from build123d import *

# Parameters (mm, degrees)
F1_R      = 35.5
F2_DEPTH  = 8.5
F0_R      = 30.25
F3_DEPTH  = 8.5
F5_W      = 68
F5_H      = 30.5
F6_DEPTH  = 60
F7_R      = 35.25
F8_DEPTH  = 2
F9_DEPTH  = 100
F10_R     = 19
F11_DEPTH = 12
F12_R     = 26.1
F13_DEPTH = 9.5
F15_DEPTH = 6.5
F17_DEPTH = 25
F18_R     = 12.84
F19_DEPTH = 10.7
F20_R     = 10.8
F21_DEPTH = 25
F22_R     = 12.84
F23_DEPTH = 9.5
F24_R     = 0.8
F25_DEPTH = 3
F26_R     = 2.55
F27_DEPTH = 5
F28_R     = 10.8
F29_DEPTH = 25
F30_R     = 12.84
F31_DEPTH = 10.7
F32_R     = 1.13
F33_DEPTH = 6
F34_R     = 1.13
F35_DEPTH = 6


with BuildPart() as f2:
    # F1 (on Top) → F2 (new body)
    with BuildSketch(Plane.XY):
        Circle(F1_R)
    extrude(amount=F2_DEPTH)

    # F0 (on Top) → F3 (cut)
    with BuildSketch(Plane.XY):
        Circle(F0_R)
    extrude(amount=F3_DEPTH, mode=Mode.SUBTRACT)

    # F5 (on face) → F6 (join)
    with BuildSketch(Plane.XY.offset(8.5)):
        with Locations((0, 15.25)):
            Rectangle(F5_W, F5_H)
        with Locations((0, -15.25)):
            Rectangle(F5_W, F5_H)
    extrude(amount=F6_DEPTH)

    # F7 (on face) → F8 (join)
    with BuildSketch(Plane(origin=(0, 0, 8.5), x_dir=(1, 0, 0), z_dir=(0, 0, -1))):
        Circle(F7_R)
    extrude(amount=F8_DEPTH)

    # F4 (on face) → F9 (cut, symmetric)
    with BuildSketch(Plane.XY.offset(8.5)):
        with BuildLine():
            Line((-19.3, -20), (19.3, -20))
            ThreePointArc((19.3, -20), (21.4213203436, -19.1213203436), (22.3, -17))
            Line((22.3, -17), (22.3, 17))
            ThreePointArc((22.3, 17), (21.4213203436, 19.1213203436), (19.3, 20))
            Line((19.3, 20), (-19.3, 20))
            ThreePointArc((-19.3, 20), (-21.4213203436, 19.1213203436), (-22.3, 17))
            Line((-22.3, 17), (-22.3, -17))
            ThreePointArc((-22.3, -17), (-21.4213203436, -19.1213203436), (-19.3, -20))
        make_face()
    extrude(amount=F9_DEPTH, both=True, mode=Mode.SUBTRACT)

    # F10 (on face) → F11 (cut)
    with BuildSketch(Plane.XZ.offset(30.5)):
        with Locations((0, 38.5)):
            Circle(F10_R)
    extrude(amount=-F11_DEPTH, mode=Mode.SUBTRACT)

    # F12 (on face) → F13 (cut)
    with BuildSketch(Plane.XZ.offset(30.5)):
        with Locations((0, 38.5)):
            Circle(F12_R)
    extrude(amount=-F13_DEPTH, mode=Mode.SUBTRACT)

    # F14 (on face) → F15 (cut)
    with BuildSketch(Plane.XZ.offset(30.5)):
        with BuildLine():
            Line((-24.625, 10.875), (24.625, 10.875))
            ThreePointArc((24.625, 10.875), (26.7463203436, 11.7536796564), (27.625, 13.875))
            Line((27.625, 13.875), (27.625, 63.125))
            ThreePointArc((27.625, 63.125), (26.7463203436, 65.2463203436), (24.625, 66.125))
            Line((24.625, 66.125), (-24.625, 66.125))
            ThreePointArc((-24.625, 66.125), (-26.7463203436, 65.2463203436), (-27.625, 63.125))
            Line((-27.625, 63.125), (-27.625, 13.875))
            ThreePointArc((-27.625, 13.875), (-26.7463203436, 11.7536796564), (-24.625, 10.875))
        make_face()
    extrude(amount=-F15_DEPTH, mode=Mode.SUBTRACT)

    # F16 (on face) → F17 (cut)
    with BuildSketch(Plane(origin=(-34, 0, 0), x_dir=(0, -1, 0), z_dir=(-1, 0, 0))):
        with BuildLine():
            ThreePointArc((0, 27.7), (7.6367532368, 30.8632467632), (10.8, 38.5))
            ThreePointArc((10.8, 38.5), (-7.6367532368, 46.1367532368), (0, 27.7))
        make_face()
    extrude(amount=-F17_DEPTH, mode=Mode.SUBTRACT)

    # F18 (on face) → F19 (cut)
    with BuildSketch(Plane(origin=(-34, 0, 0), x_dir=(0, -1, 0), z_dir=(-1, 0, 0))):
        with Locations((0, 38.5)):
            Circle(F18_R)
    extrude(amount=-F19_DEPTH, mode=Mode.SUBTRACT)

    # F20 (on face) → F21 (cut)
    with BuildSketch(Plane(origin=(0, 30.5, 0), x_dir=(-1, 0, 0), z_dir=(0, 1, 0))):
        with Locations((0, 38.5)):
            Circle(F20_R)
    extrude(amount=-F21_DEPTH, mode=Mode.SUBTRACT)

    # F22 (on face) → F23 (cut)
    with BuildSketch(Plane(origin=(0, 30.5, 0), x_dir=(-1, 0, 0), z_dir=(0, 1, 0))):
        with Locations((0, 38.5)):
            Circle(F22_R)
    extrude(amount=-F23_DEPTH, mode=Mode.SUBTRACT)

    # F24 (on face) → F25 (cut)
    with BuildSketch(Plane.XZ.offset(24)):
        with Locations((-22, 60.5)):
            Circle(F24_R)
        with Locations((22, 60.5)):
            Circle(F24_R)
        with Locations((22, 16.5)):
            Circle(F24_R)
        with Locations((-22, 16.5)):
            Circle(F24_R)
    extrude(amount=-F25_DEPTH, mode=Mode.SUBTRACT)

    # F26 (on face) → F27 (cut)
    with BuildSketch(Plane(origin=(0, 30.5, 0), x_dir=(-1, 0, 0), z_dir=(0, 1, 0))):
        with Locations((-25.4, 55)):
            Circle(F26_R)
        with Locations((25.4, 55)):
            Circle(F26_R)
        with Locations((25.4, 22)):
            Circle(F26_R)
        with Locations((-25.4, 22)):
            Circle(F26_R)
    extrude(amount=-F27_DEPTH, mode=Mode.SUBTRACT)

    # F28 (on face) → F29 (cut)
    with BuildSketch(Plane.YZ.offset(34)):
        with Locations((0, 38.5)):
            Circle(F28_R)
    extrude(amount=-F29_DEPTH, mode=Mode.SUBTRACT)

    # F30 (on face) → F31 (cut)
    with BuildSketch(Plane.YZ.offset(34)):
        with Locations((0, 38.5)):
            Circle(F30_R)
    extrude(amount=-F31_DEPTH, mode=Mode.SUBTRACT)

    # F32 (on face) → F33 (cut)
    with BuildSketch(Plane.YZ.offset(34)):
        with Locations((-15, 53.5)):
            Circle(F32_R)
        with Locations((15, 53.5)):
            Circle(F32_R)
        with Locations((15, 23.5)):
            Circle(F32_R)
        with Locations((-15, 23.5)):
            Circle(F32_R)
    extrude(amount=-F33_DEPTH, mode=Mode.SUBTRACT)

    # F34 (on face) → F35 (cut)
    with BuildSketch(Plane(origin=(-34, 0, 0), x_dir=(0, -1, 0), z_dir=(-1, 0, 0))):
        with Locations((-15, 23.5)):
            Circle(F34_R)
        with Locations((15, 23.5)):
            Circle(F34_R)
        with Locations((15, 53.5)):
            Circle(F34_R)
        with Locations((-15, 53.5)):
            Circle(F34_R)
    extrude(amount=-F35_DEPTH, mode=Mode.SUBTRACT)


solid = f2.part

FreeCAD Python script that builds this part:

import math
import FreeCAD as App
import Part
import Sketcher

V = App.Vector
Q = App.Units.Quantity

doc = App.newDocument("Part")
body = doc.addObject("PartDesign::Body", "Body")

# Sketch on XY plane
sketch1 = doc.addObject("Sketcher::SketchObject", "Sketch")
body.addObject(sketch1)
sketch1.AttachmentSupport = (doc.XY_Plane, [""])
sketch1.MapMode = "FlatFace"
sketch1.addGeometry(Part.Circle(V(0, 0, 0), V(0, 0, 1), 36), False)
sketch1.addConstraint(Sketcher.Constraint("Coincident", 0, 3, -1, 1))
sketch1.addConstraint(Sketcher.Constraint("Diameter", 0, Q("71 mm")))
pad1 = doc.addObject("PartDesign::Pad", "Pad")
body.addObject(pad1)
pad1.Profile = sketch1
pad1.Length = 8.5

# Sketch on XY plane
sketch2 = doc.addObject("Sketcher::SketchObject", "Sketch001")
body.addObject(sketch2)
sketch2.AttachmentSupport = (doc.XY_Plane, [""])
sketch2.MapMode = "FlatFace"
sketch2.addGeometry(Part.Circle(V(0, 0, 0), V(0, 0, 1), 30), False)
sketch2.addConstraint(Sketcher.Constraint("Coincident", 0, 3, -1, 1))
sketch2.addConstraint(Sketcher.Constraint("Diameter", 0, Q("60.5 mm")))
pocket1 = doc.addObject("PartDesign::Pocket", "Pocket")
body.addObject(pocket1)
pocket1.Profile = sketch2
pocket1.Length = 8.5
pocket1.Reversed = True

# Sketch on XY plane
sketch3 = doc.addObject("Sketcher::SketchObject", "Sketch002")
body.addObject(sketch3)
sketch3.AttachmentSupport = (doc.XY_Plane, [""])
sketch3.MapMode = "FlatFace"
sketch3.AttachmentOffset = App.Placement(V(0, 0, 8.5), App.Rotation())
sketch3.addGeometry(Part.LineSegment(V(-34, 30, 0), V(-34, -30, 0)), False)
sketch3.addGeometry(Part.LineSegment(V(-34, -30, 0), V(34, -30, 0)), False)
sketch3.addGeometry(Part.LineSegment(V(34, -30, 0), V(34, 30, 0)), False)
sketch3.addGeometry(Part.LineSegment(V(34, 30, 0), V(-34, 30, 0)), False)
sketch3.addConstraint(Sketcher.Constraint("Coincident", 0, 2, 1, 1))
sketch3.addConstraint(Sketcher.Constraint("Coincident", 1, 2, 2, 1))
sketch3.addConstraint(Sketcher.Constraint("Coincident", 2, 2, 3, 1))
sketch3.addConstraint(Sketcher.Constraint("Coincident", 3, 2, 0, 1))
sketch3.addConstraint(Sketcher.Constraint("Vertical", 0))
sketch3.addConstraint(Sketcher.Constraint("Horizontal", 1))
sketch3.addConstraint(Sketcher.Constraint("Vertical", 2))
sketch3.addConstraint(Sketcher.Constraint("Horizontal", 3))
sketch3.addConstraint(Sketcher.Constraint("Symmetric", 0, 2, 2, 2, -1, 1))
sketch3.addConstraint(Sketcher.Constraint("DistanceX", 1, 1, 1, 2, Q("68 mm")))
sketch3.addConstraint(Sketcher.Constraint("DistanceY", 0, 2, 0, 1, Q("61 mm")))
pad2 = doc.addObject("PartDesign::Pad", "Pad001")
body.addObject(pad2)
pad2.Profile = sketch3
pad2.Length = 60

# Sketch on XY plane
sketch4 = doc.addObject("Sketcher::SketchObject", "Sketch003")
body.addObject(sketch4)
sketch4.AttachmentSupport = (doc.XY_Plane, [""])
sketch4.MapMode = "FlatFace"
sketch4.AttachmentOffset = App.Placement(V(0, 0, 8.5), App.Rotation())
sketch4.addGeometry(Part.Circle(V(0, 0, 0), V(0, 0, 1), 35), False)
sketch4.addConstraint(Sketcher.Constraint("Coincident", 0, 3, -1, 1))
sketch4.addConstraint(Sketcher.Constraint("Diameter", 0, Q("70.5 mm")))
pad3 = doc.addObject("PartDesign::Pad", "Pad002")
body.addObject(pad3)
pad3.Profile = sketch4
pad3.Length = 2
pad3.Reversed = True

# Sketch on XY plane
sketch5 = doc.addObject("Sketcher::SketchObject", "Sketch004")
body.addObject(sketch5)
sketch5.AttachmentSupport = (doc.XY_Plane, [""])
sketch5.MapMode = "FlatFace"
sketch5.AttachmentOffset = App.Placement(V(0, 0, 8.5), App.Rotation())
sketch5.addGeometry(Part.LineSegment(V(-19.3, -20, 0), V(19.3, -20, 0)), False)
sketch5.addGeometry(Part.ArcOfCircle(Part.Circle(V(19.3, -17, 0), V(0, 0, 1), 3), math.radians(-90), math.radians(0)), False)
sketch5.addGeometry(Part.LineSegment(V(22.3, -17, 0), V(22.3, 17, 0)), False)
sketch5.addGeometry(Part.ArcOfCircle(Part.Circle(V(19.3, 17, 0), V(0, 0, 1), 3), math.radians(0), math.radians(90)), False)
sketch5.addGeometry(Part.LineSegment(V(19.3, 20, 0), V(-19.3, 20, 0)), False)
sketch5.addGeometry(Part.ArcOfCircle(Part.Circle(V(-19.3, 17, 0), V(0, 0, 1), 3), math.radians(90), math.radians(180)), False)
sketch5.addGeometry(Part.LineSegment(V(-22.3, 17, 0), V(-22.3, -17, 0)), False)
sketch5.addGeometry(Part.ArcOfCircle(Part.Circle(V(-19.3, -17, 0), V(0, 0, 1), 3), math.radians(180), math.radians(270)), False)
sketch5.addConstraint(Sketcher.Constraint("Tangent", 0, 2, 1, 1))
sketch5.addConstraint(Sketcher.Constraint("Tangent", 1, 2, 2, 1))
sketch5.addConstraint(Sketcher.Constraint("Tangent", 2, 2, 3, 1))
sketch5.addConstraint(Sketcher.Constraint("Tangent", 3, 2, 4, 1))
sketch5.addConstraint(Sketcher.Constraint("Tangent", 4, 2, 5, 1))
sketch5.addConstraint(Sketcher.Constraint("Tangent", 5, 2, 6, 1))
sketch5.addConstraint(Sketcher.Constraint("Tangent", 6, 2, 7, 1))
sketch5.addConstraint(Sketcher.Constraint("Tangent", 7, 2, 0, 1))
sketch5.addConstraint(Sketcher.Constraint("Horizontal", 0))
sketch5.addConstraint(Sketcher.Constraint("Vertical", 2))
sketch5.addConstraint(Sketcher.Constraint("Horizontal", 4))
sketch5.addConstraint(Sketcher.Constraint("Vertical", 6))
sketch5.addConstraint(Sketcher.Constraint("Equal", 1, 3))
sketch5.addConstraint(Sketcher.Constraint("Equal", 3, 5))
sketch5.addConstraint(Sketcher.Constraint("Equal", 5, 7))
sketch5.addConstraint(Sketcher.Constraint("Symmetric", 1, 3, 5, 3, -1, 1))
sketch5.addConstraint(Sketcher.Constraint("Radius", 1, Q("3 mm")))
sketch5.addConstraint(Sketcher.Constraint("DistanceY", 2, 1, 2, 2, Q("34 mm")))
sketch5.addConstraint(Sketcher.Constraint("DistanceX", 0, 1, 0, 2, Q("38.6 mm")))
pocket2 = doc.addObject("PartDesign::Pocket", "Pocket001")
body.addObject(pocket2)
pocket2.Profile = sketch5
pocket2.Length = 200
pocket2.Midplane = True

# Sketch on XZ plane
sketch6 = doc.addObject("Sketcher::SketchObject", "Sketch005")
body.addObject(sketch6)
sketch6.AttachmentSupport = (doc.XZ_Plane, [""])
sketch6.MapMode = "FlatFace"
sketch6.AttachmentOffset = App.Placement(V(0, 0, 30.5), App.Rotation())
sketch6.addGeometry(Part.Circle(V(0, 38, 0), V(0, 0, 1), 19), False)
sketch6.addConstraint(Sketcher.Constraint("PointOnObject", 0, 3, -2))
sketch6.addConstraint(Sketcher.Constraint("Diameter", 0, Q("38 mm")))
sketch6.addConstraint(Sketcher.Constraint("DistanceY", -1, 1, 0, 3, Q("38.5 mm")))
pocket3 = doc.addObject("PartDesign::Pocket", "Pocket002")
body.addObject(pocket3)
pocket3.Profile = sketch6
pocket3.Length = 12

# Sketch on XZ plane
sketch7 = doc.addObject("Sketcher::SketchObject", "Sketch006")
body.addObject(sketch7)
sketch7.AttachmentSupport = (doc.XZ_Plane, [""])
sketch7.MapMode = "FlatFace"
sketch7.AttachmentOffset = App.Placement(V(0, 0, 30.5), App.Rotation())
sketch7.addGeometry(Part.Circle(V(0, 38, 0), V(0, 0, 1), 26), False)
sketch7.addConstraint(Sketcher.Constraint("PointOnObject", 0, 3, -2))
sketch7.addConstraint(Sketcher.Constraint("Diameter", 0, Q("52.2 mm")))
sketch7.addConstraint(Sketcher.Constraint("DistanceY", -1, 1, 0, 3, Q("38.5 mm")))
pocket4 = doc.addObject("PartDesign::Pocket", "Pocket003")
body.addObject(pocket4)
pocket4.Profile = sketch7
pocket4.Length = 9.5

# Sketch on XZ plane
sketch8 = doc.addObject("Sketcher::SketchObject", "Sketch007")
body.addObject(sketch8)
sketch8.AttachmentSupport = (doc.XZ_Plane, [""])
sketch8.MapMode = "FlatFace"
sketch8.AttachmentOffset = App.Placement(V(0, 0, 30.5), App.Rotation())
sketch8.addGeometry(Part.LineSegment(V(-24.6, 10.9, 0), V(24.6, 10.9, 0)), False)
sketch8.addGeometry(Part.ArcOfCircle(Part.Circle(V(24.6, 13.9, 0), V(0, 0, 1), 3), math.radians(-90), math.radians(0)), False)
sketch8.addGeometry(Part.LineSegment(V(27.6, 13.9, 0), V(27.6, 63.1, 0)), False)
sketch8.addGeometry(Part.ArcOfCircle(Part.Circle(V(24.6, 63.1, 0), V(0, 0, 1), 3), math.radians(0), math.radians(90)), False)
sketch8.addGeometry(Part.LineSegment(V(24.6, 66.1, 0), V(-24.6, 66.1, 0)), False)
sketch8.addGeometry(Part.ArcOfCircle(Part.Circle(V(-24.6, 63.1, 0), V(0, 0, 1), 3), math.radians(90), math.radians(180)), False)
sketch8.addGeometry(Part.LineSegment(V(-27.6, 63.1, 0), V(-27.6, 13.9, 0)), False)
sketch8.addGeometry(Part.ArcOfCircle(Part.Circle(V(-24.6, 13.9, 0), V(0, 0, 1), 3), math.radians(180), math.radians(270)), False)
sketch8.addConstraint(Sketcher.Constraint("Tangent", 0, 2, 1, 1))
sketch8.addConstraint(Sketcher.Constraint("Tangent", 1, 2, 2, 1))
sketch8.addConstraint(Sketcher.Constraint("Tangent", 2, 2, 3, 1))
sketch8.addConstraint(Sketcher.Constraint("Tangent", 3, 2, 4, 1))
sketch8.addConstraint(Sketcher.Constraint("Tangent", 4, 2, 5, 1))
sketch8.addConstraint(Sketcher.Constraint("Tangent", 5, 2, 6, 1))
sketch8.addConstraint(Sketcher.Constraint("Tangent", 6, 2, 7, 1))
sketch8.addConstraint(Sketcher.Constraint("Tangent", 7, 2, 0, 1))
sketch8.addConstraint(Sketcher.Constraint("Horizontal", 0))
sketch8.addConstraint(Sketcher.Constraint("Vertical", 2))
sketch8.addConstraint(Sketcher.Constraint("Horizontal", 4))
sketch8.addConstraint(Sketcher.Constraint("Vertical", 6))
sketch8.addConstraint(Sketcher.Constraint("Equal", 1, 3))
sketch8.addConstraint(Sketcher.Constraint("Equal", 3, 5))
sketch8.addConstraint(Sketcher.Constraint("Equal", 5, 7))
sketch8.addConstraint(Sketcher.Constraint("Equal", 4, 2))
sketch8.addConstraint(Sketcher.Constraint("Radius", 1, Q("3 mm")))
sketch8.addConstraint(Sketcher.Constraint("DistanceX", 0, 1, 0, 2, Q("49.25 mm")))
sketch8.addConstraint(Sketcher.Constraint("DistanceX", -1, 1, 1, 3, Q("24.625 mm")))
sketch8.addConstraint(Sketcher.Constraint("DistanceY", -1, 1, 1, 3, Q("13.875 mm")))
pocket5 = doc.addObject("PartDesign::Pocket", "Pocket004")
body.addObject(pocket5)
pocket5.Profile = sketch8
pocket5.Length = 6.5

# Sketch on YZ plane
sketch9 = doc.addObject("Sketcher::SketchObject", "Sketch008")
body.addObject(sketch9)
sketch9.AttachmentSupport = (doc.YZ_Plane, [""])
sketch9.MapMode = "FlatFace"
sketch9.AttachmentOffset = App.Placement(V(0, 0, -34), App.Rotation())
sketch9.addGeometry(Part.ArcOfCircle(Part.Circle(V(0, 38, 0), V(0, 0, 1), 11), math.radians(180), math.radians(270)), False)
sketch9.addGeometry(Part.ArcOfCircle(Part.Circle(V(0, 38, 0), V(0, 0, 1), 11), math.radians(-90), math.radians(180)), False)
sketch9.addConstraint(Sketcher.Constraint("Tangent", 0, 1, 1, 2))
sketch9.addConstraint(Sketcher.Constraint("Coincident", 1, 1, 0, 2))
sketch9.addConstraint(Sketcher.Constraint("PointOnObject", 0, 3, -2))
sketch9.addConstraint(Sketcher.Constraint("PointOnObject", 1, 1, -2))
sketch9.addConstraint(Sketcher.Constraint("Horizontal", 1, 3, 0, 1))
sketch9.addConstraint(Sketcher.Constraint("Radius", 0, Q("10.8 mm")))
sketch9.addConstraint(Sketcher.Constraint("DistanceY", -1, 1, 0, 3, Q("38.5 mm")))
pocket6 = doc.addObject("PartDesign::Pocket", "Pocket005")
body.addObject(pocket6)
pocket6.Profile = sketch9
pocket6.Length = 25
pocket6.Reversed = True

# Sketch on YZ plane
sketch10 = doc.addObject("Sketcher::SketchObject", "Sketch009")
body.addObject(sketch10)
sketch10.AttachmentSupport = (doc.YZ_Plane, [""])
sketch10.MapMode = "FlatFace"
sketch10.AttachmentOffset = App.Placement(V(0, 0, -34), App.Rotation())
sketch10.addGeometry(Part.Circle(V(0, 38, 0), V(0, 0, 1), 13), False)
sketch10.addConstraint(Sketcher.Constraint("PointOnObject", 0, 3, -2))
sketch10.addConstraint(Sketcher.Constraint("Diameter", 0, Q("25.68 mm")))
sketch10.addConstraint(Sketcher.Constraint("DistanceY", -1, 1, 0, 3, Q("38.5 mm")))
pocket7 = doc.addObject("PartDesign::Pocket", "Pocket006")
body.addObject(pocket7)
pocket7.Profile = sketch10
pocket7.Length = 10.7
pocket7.Reversed = True

# Sketch on XZ plane
sketch11 = doc.addObject("Sketcher::SketchObject", "Sketch010")
body.addObject(sketch11)
sketch11.AttachmentSupport = (doc.XZ_Plane, [""])
sketch11.MapMode = "FlatFace"
sketch11.AttachmentOffset = App.Placement(V(0, 0, -30.5), App.Rotation())
sketch11.addGeometry(Part.Circle(V(0, 38, 0), V(0, 0, 1), 11), False)
sketch11.addConstraint(Sketcher.Constraint("PointOnObject", 0, 3, -2))
sketch11.addConstraint(Sketcher.Constraint("Diameter", 0, Q("21.6 mm")))
sketch11.addConstraint(Sketcher.Constraint("DistanceY", -1, 1, 0, 3, Q("38.5 mm")))
pocket8 = doc.addObject("PartDesign::Pocket", "Pocket007")
body.addObject(pocket8)
pocket8.Profile = sketch11
pocket8.Length = 25
pocket8.Reversed = True

# Sketch on XZ plane
sketch12 = doc.addObject("Sketcher::SketchObject", "Sketch011")
body.addObject(sketch12)
sketch12.AttachmentSupport = (doc.XZ_Plane, [""])
sketch12.MapMode = "FlatFace"
sketch12.AttachmentOffset = App.Placement(V(0, 0, -30.5), App.Rotation())
sketch12.addGeometry(Part.Circle(V(0, 38, 0), V(0, 0, 1), 13), False)
sketch12.addConstraint(Sketcher.Constraint("PointOnObject", 0, 3, -2))
sketch12.addConstraint(Sketcher.Constraint("Diameter", 0, Q("25.68 mm")))
sketch12.addConstraint(Sketcher.Constraint("DistanceY", -1, 1, 0, 3, Q("38.5 mm")))
pocket9 = doc.addObject("PartDesign::Pocket", "Pocket008")
body.addObject(pocket9)
pocket9.Profile = sketch12
pocket9.Length = 9.5
pocket9.Reversed = True

# Sketch on XZ plane
sketch13 = doc.addObject("Sketcher::SketchObject", "Sketch012")
body.addObject(sketch13)
sketch13.AttachmentSupport = (doc.XZ_Plane, [""])
sketch13.MapMode = "FlatFace"
sketch13.AttachmentOffset = App.Placement(V(0, 0, 24), App.Rotation())
sketch13.addGeometry(Part.Circle(V(-22, 60.5, 0), V(0, 0, 1), 0.8), False)
sketch13.addGeometry(Part.Circle(V(22, 60.5, 0), V(0, 0, 1), 0.8), False)
sketch13.addGeometry(Part.Circle(V(22, 16.5, 0), V(0, 0, 1), 0.8), False)
sketch13.addGeometry(Part.Circle(V(-22, 16.5, 0), V(0, 0, 1), 0.8), False)
sketch13.addConstraint(Sketcher.Constraint("Equal", 0, 1))
sketch13.addConstraint(Sketcher.Constraint("Equal", 1, 2))
sketch13.addConstraint(Sketcher.Constraint("Equal", 2, 3))
sketch13.addConstraint(Sketcher.Constraint("Symmetric", 0, 3, 1, 3, -2))
sketch13.addConstraint(Sketcher.Constraint("Symmetric", 2, 3, 3, 3, -2))
sketch13.addConstraint(Sketcher.Constraint("Vertical", 1, 3, 2, 3))
sketch13.addConstraint(Sketcher.Constraint("Diameter", 0, Q("1.6 mm")))
sketch13.addConstraint(Sketcher.Constraint("DistanceX", 0, 3, -1, 1, Q("22 mm")))
sketch13.addConstraint(Sketcher.Constraint("DistanceY", 2, 3, 1, 3, Q("44 mm")))
sketch13.addConstraint(Sketcher.Constraint("DistanceY", -1, 1, 0, 3, Q("60.5 mm")))
pocket10 = doc.addObject("PartDesign::Pocket", "Pocket009")
body.addObject(pocket10)
pocket10.Profile = sketch13
pocket10.Length = 3

# Sketch on XZ plane
sketch14 = doc.addObject("Sketcher::SketchObject", "Sketch013")
body.addObject(sketch14)
sketch14.AttachmentSupport = (doc.XZ_Plane, [""])
sketch14.MapMode = "FlatFace"
sketch14.AttachmentOffset = App.Placement(V(0, 0, -30.5), App.Rotation())
sketch14.addGeometry(Part.Circle(V(25.4, 55, 0), V(0, 0, 1), 2.5), False)
sketch14.addGeometry(Part.Circle(V(-25.4, 55, 0), V(0, 0, 1), 2.5), False)
sketch14.addGeometry(Part.Circle(V(-25.4, 22, 0), V(0, 0, 1), 2.5), False)
sketch14.addGeometry(Part.Circle(V(25.4, 22, 0), V(0, 0, 1), 2.5), False)
sketch14.addConstraint(Sketcher.Constraint("Equal", 0, 1))
sketch14.addConstraint(Sketcher.Constraint("Equal", 1, 2))
sketch14.addConstraint(Sketcher.Constraint("Equal", 2, 3))
sketch14.addConstraint(Sketcher.Constraint("Symmetric", 0, 3, 1, 3, -2))
sketch14.addConstraint(Sketcher.Constraint("Symmetric", 2, 3, 3, 3, -2))
sketch14.addConstraint(Sketcher.Constraint("Vertical", 1, 3, 2, 3))
sketch14.addConstraint(Sketcher.Constraint("Diameter", 0, Q("5.1 mm")))
sketch14.addConstraint(Sketcher.Constraint("DistanceY", -1, 1, 0, 3, Q("55 mm")))
sketch14.addConstraint(Sketcher.Constraint("DistanceY", -1, 1, 2, 3, Q("22 mm")))
sketch14.addConstraint(Sketcher.Constraint("DistanceX", -1, 1, 0, 3, Q("25.4 mm")))
pocket11 = doc.addObject("PartDesign::Pocket", "Pocket010")
body.addObject(pocket11)
pocket11.Profile = sketch14
pocket11.Length = 5
pocket11.Reversed = True

# Sketch on YZ plane
sketch15 = doc.addObject("Sketcher::SketchObject", "Sketch014")
body.addObject(sketch15)
sketch15.AttachmentSupport = (doc.YZ_Plane, [""])
sketch15.MapMode = "FlatFace"
sketch15.AttachmentOffset = App.Placement(V(0, 0, 34), App.Rotation())
sketch15.addGeometry(Part.Circle(V(0, 38, 0), V(0, 0, 1), 11), False)
sketch15.addConstraint(Sketcher.Constraint("PointOnObject", 0, 3, -2))
sketch15.addConstraint(Sketcher.Constraint("Diameter", 0, Q("21.6 mm")))
sketch15.addConstraint(Sketcher.Constraint("DistanceY", -1, 1, 0, 3, Q("38.5 mm")))
pocket12 = doc.addObject("PartDesign::Pocket", "Pocket011")
body.addObject(pocket12)
pocket12.Profile = sketch15
pocket12.Length = 25

# Sketch on YZ plane
sketch16 = doc.addObject("Sketcher::SketchObject", "Sketch015")
body.addObject(sketch16)
sketch16.AttachmentSupport = (doc.YZ_Plane, [""])
sketch16.MapMode = "FlatFace"
sketch16.AttachmentOffset = App.Placement(V(0, 0, 34), App.Rotation())
sketch16.addGeometry(Part.Circle(V(0, 38, 0), V(0, 0, 1), 13), False)
sketch16.addConstraint(Sketcher.Constraint("PointOnObject", 0, 3, -2))
sketch16.addConstraint(Sketcher.Constraint("Diameter", 0, Q("25.68 mm")))
sketch16.addConstraint(Sketcher.Constraint("DistanceY", -1, 1, 0, 3, Q("38.5 mm")))
pocket13 = doc.addObject("PartDesign::Pocket", "Pocket012")
body.addObject(pocket13)
pocket13.Profile = sketch16
pocket13.Length = 10.7

# Sketch on YZ plane
sketch17 = doc.addObject("Sketcher::SketchObject", "Sketch016")
body.addObject(sketch17)
sketch17.AttachmentSupport = (doc.YZ_Plane, [""])
sketch17.MapMode = "FlatFace"
sketch17.AttachmentOffset = App.Placement(V(0, 0, 34), App.Rotation())
sketch17.addGeometry(Part.Circle(V(-15, 53.5, 0), V(0, 0, 1), 1.1), False)
sketch17.addGeometry(Part.Circle(V(15, 53.5, 0), V(0, 0, 1), 1.1), False)
sketch17.addGeometry(Part.Circle(V(15, 23.5, 0), V(0, 0, 1), 1.1), False)
sketch17.addGeometry(Part.Circle(V(-15, 23.5, 0), V(0, 0, 1), 1.1), False)
sketch17.addConstraint(Sketcher.Constraint("Equal", 0, 1))
sketch17.addConstraint(Sketcher.Constraint("Equal", 1, 2))
sketch17.addConstraint(Sketcher.Constraint("Equal", 2, 3))
sketch17.addConstraint(Sketcher.Constraint("Symmetric", 0, 3, 1, 3, -2))
sketch17.addConstraint(Sketcher.Constraint("Symmetric", 2, 3, 3, 3, -2))
sketch17.addConstraint(Sketcher.Constraint("Vertical", 1, 3, 2, 3))
sketch17.addConstraint(Sketcher.Constraint("Diameter", 0, Q("2.26 mm")))
sketch17.addConstraint(Sketcher.Constraint("DistanceX", 0, 3, -1, 1, Q("15 mm")))
sketch17.addConstraint(Sketcher.Constraint("DistanceY", 2, 3, 1, 3, Q("30 mm")))
sketch17.addConstraint(Sketcher.Constraint("DistanceY", -1, 1, 0, 3, Q("53.5 mm")))
pocket14 = doc.addObject("PartDesign::Pocket", "Pocket013")
body.addObject(pocket14)
pocket14.Profile = sketch17
pocket14.Length = 6

# Sketch on YZ plane
sketch18 = doc.addObject("Sketcher::SketchObject", "Sketch017")
body.addObject(sketch18)
sketch18.AttachmentSupport = (doc.YZ_Plane, [""])
sketch18.MapMode = "FlatFace"
sketch18.AttachmentOffset = App.Placement(V(0, 0, -34), App.Rotation())
sketch18.addGeometry(Part.Circle(V(15, 23.5, 0), V(0, 0, 1), 1.1), False)
sketch18.addGeometry(Part.Circle(V(-15, 23.5, 0), V(0, 0, 1), 1.1), False)
sketch18.addGeometry(Part.Circle(V(-15, 53.5, 0), V(0, 0, 1), 1.1), False)
sketch18.addGeometry(Part.Circle(V(15, 53.5, 0), V(0, 0, 1), 1.1), False)
sketch18.addConstraint(Sketcher.Constraint("Equal", 0, 1))
sketch18.addConstraint(Sketcher.Constraint("Equal", 1, 2))
sketch18.addConstraint(Sketcher.Constraint("Equal", 2, 3))
sketch18.addConstraint(Sketcher.Constraint("Symmetric", 0, 3, 1, 3, -2))
sketch18.addConstraint(Sketcher.Constraint("Symmetric", 2, 3, 3, 3, -2))
sketch18.addConstraint(Sketcher.Constraint("Vertical", 1, 3, 2, 3))
sketch18.addConstraint(Sketcher.Constraint("Diameter", 0, Q("2.26 mm")))
sketch18.addConstraint(Sketcher.Constraint("DistanceX", -1, 1, 0, 3, Q("15 mm")))
sketch18.addConstraint(Sketcher.Constraint("DistanceY", 1, 3, 2, 3, Q("30 mm")))
sketch18.addConstraint(Sketcher.Constraint("DistanceY", -1, 1, 0, 3, Q("23.5 mm")))
pocket15 = doc.addObject("PartDesign::Pocket", "Pocket014")
body.addObject(pocket15)
pocket15.Profile = sketch18
pocket15.Length = 6
pocket15.Reversed = True

doc.recompute()
